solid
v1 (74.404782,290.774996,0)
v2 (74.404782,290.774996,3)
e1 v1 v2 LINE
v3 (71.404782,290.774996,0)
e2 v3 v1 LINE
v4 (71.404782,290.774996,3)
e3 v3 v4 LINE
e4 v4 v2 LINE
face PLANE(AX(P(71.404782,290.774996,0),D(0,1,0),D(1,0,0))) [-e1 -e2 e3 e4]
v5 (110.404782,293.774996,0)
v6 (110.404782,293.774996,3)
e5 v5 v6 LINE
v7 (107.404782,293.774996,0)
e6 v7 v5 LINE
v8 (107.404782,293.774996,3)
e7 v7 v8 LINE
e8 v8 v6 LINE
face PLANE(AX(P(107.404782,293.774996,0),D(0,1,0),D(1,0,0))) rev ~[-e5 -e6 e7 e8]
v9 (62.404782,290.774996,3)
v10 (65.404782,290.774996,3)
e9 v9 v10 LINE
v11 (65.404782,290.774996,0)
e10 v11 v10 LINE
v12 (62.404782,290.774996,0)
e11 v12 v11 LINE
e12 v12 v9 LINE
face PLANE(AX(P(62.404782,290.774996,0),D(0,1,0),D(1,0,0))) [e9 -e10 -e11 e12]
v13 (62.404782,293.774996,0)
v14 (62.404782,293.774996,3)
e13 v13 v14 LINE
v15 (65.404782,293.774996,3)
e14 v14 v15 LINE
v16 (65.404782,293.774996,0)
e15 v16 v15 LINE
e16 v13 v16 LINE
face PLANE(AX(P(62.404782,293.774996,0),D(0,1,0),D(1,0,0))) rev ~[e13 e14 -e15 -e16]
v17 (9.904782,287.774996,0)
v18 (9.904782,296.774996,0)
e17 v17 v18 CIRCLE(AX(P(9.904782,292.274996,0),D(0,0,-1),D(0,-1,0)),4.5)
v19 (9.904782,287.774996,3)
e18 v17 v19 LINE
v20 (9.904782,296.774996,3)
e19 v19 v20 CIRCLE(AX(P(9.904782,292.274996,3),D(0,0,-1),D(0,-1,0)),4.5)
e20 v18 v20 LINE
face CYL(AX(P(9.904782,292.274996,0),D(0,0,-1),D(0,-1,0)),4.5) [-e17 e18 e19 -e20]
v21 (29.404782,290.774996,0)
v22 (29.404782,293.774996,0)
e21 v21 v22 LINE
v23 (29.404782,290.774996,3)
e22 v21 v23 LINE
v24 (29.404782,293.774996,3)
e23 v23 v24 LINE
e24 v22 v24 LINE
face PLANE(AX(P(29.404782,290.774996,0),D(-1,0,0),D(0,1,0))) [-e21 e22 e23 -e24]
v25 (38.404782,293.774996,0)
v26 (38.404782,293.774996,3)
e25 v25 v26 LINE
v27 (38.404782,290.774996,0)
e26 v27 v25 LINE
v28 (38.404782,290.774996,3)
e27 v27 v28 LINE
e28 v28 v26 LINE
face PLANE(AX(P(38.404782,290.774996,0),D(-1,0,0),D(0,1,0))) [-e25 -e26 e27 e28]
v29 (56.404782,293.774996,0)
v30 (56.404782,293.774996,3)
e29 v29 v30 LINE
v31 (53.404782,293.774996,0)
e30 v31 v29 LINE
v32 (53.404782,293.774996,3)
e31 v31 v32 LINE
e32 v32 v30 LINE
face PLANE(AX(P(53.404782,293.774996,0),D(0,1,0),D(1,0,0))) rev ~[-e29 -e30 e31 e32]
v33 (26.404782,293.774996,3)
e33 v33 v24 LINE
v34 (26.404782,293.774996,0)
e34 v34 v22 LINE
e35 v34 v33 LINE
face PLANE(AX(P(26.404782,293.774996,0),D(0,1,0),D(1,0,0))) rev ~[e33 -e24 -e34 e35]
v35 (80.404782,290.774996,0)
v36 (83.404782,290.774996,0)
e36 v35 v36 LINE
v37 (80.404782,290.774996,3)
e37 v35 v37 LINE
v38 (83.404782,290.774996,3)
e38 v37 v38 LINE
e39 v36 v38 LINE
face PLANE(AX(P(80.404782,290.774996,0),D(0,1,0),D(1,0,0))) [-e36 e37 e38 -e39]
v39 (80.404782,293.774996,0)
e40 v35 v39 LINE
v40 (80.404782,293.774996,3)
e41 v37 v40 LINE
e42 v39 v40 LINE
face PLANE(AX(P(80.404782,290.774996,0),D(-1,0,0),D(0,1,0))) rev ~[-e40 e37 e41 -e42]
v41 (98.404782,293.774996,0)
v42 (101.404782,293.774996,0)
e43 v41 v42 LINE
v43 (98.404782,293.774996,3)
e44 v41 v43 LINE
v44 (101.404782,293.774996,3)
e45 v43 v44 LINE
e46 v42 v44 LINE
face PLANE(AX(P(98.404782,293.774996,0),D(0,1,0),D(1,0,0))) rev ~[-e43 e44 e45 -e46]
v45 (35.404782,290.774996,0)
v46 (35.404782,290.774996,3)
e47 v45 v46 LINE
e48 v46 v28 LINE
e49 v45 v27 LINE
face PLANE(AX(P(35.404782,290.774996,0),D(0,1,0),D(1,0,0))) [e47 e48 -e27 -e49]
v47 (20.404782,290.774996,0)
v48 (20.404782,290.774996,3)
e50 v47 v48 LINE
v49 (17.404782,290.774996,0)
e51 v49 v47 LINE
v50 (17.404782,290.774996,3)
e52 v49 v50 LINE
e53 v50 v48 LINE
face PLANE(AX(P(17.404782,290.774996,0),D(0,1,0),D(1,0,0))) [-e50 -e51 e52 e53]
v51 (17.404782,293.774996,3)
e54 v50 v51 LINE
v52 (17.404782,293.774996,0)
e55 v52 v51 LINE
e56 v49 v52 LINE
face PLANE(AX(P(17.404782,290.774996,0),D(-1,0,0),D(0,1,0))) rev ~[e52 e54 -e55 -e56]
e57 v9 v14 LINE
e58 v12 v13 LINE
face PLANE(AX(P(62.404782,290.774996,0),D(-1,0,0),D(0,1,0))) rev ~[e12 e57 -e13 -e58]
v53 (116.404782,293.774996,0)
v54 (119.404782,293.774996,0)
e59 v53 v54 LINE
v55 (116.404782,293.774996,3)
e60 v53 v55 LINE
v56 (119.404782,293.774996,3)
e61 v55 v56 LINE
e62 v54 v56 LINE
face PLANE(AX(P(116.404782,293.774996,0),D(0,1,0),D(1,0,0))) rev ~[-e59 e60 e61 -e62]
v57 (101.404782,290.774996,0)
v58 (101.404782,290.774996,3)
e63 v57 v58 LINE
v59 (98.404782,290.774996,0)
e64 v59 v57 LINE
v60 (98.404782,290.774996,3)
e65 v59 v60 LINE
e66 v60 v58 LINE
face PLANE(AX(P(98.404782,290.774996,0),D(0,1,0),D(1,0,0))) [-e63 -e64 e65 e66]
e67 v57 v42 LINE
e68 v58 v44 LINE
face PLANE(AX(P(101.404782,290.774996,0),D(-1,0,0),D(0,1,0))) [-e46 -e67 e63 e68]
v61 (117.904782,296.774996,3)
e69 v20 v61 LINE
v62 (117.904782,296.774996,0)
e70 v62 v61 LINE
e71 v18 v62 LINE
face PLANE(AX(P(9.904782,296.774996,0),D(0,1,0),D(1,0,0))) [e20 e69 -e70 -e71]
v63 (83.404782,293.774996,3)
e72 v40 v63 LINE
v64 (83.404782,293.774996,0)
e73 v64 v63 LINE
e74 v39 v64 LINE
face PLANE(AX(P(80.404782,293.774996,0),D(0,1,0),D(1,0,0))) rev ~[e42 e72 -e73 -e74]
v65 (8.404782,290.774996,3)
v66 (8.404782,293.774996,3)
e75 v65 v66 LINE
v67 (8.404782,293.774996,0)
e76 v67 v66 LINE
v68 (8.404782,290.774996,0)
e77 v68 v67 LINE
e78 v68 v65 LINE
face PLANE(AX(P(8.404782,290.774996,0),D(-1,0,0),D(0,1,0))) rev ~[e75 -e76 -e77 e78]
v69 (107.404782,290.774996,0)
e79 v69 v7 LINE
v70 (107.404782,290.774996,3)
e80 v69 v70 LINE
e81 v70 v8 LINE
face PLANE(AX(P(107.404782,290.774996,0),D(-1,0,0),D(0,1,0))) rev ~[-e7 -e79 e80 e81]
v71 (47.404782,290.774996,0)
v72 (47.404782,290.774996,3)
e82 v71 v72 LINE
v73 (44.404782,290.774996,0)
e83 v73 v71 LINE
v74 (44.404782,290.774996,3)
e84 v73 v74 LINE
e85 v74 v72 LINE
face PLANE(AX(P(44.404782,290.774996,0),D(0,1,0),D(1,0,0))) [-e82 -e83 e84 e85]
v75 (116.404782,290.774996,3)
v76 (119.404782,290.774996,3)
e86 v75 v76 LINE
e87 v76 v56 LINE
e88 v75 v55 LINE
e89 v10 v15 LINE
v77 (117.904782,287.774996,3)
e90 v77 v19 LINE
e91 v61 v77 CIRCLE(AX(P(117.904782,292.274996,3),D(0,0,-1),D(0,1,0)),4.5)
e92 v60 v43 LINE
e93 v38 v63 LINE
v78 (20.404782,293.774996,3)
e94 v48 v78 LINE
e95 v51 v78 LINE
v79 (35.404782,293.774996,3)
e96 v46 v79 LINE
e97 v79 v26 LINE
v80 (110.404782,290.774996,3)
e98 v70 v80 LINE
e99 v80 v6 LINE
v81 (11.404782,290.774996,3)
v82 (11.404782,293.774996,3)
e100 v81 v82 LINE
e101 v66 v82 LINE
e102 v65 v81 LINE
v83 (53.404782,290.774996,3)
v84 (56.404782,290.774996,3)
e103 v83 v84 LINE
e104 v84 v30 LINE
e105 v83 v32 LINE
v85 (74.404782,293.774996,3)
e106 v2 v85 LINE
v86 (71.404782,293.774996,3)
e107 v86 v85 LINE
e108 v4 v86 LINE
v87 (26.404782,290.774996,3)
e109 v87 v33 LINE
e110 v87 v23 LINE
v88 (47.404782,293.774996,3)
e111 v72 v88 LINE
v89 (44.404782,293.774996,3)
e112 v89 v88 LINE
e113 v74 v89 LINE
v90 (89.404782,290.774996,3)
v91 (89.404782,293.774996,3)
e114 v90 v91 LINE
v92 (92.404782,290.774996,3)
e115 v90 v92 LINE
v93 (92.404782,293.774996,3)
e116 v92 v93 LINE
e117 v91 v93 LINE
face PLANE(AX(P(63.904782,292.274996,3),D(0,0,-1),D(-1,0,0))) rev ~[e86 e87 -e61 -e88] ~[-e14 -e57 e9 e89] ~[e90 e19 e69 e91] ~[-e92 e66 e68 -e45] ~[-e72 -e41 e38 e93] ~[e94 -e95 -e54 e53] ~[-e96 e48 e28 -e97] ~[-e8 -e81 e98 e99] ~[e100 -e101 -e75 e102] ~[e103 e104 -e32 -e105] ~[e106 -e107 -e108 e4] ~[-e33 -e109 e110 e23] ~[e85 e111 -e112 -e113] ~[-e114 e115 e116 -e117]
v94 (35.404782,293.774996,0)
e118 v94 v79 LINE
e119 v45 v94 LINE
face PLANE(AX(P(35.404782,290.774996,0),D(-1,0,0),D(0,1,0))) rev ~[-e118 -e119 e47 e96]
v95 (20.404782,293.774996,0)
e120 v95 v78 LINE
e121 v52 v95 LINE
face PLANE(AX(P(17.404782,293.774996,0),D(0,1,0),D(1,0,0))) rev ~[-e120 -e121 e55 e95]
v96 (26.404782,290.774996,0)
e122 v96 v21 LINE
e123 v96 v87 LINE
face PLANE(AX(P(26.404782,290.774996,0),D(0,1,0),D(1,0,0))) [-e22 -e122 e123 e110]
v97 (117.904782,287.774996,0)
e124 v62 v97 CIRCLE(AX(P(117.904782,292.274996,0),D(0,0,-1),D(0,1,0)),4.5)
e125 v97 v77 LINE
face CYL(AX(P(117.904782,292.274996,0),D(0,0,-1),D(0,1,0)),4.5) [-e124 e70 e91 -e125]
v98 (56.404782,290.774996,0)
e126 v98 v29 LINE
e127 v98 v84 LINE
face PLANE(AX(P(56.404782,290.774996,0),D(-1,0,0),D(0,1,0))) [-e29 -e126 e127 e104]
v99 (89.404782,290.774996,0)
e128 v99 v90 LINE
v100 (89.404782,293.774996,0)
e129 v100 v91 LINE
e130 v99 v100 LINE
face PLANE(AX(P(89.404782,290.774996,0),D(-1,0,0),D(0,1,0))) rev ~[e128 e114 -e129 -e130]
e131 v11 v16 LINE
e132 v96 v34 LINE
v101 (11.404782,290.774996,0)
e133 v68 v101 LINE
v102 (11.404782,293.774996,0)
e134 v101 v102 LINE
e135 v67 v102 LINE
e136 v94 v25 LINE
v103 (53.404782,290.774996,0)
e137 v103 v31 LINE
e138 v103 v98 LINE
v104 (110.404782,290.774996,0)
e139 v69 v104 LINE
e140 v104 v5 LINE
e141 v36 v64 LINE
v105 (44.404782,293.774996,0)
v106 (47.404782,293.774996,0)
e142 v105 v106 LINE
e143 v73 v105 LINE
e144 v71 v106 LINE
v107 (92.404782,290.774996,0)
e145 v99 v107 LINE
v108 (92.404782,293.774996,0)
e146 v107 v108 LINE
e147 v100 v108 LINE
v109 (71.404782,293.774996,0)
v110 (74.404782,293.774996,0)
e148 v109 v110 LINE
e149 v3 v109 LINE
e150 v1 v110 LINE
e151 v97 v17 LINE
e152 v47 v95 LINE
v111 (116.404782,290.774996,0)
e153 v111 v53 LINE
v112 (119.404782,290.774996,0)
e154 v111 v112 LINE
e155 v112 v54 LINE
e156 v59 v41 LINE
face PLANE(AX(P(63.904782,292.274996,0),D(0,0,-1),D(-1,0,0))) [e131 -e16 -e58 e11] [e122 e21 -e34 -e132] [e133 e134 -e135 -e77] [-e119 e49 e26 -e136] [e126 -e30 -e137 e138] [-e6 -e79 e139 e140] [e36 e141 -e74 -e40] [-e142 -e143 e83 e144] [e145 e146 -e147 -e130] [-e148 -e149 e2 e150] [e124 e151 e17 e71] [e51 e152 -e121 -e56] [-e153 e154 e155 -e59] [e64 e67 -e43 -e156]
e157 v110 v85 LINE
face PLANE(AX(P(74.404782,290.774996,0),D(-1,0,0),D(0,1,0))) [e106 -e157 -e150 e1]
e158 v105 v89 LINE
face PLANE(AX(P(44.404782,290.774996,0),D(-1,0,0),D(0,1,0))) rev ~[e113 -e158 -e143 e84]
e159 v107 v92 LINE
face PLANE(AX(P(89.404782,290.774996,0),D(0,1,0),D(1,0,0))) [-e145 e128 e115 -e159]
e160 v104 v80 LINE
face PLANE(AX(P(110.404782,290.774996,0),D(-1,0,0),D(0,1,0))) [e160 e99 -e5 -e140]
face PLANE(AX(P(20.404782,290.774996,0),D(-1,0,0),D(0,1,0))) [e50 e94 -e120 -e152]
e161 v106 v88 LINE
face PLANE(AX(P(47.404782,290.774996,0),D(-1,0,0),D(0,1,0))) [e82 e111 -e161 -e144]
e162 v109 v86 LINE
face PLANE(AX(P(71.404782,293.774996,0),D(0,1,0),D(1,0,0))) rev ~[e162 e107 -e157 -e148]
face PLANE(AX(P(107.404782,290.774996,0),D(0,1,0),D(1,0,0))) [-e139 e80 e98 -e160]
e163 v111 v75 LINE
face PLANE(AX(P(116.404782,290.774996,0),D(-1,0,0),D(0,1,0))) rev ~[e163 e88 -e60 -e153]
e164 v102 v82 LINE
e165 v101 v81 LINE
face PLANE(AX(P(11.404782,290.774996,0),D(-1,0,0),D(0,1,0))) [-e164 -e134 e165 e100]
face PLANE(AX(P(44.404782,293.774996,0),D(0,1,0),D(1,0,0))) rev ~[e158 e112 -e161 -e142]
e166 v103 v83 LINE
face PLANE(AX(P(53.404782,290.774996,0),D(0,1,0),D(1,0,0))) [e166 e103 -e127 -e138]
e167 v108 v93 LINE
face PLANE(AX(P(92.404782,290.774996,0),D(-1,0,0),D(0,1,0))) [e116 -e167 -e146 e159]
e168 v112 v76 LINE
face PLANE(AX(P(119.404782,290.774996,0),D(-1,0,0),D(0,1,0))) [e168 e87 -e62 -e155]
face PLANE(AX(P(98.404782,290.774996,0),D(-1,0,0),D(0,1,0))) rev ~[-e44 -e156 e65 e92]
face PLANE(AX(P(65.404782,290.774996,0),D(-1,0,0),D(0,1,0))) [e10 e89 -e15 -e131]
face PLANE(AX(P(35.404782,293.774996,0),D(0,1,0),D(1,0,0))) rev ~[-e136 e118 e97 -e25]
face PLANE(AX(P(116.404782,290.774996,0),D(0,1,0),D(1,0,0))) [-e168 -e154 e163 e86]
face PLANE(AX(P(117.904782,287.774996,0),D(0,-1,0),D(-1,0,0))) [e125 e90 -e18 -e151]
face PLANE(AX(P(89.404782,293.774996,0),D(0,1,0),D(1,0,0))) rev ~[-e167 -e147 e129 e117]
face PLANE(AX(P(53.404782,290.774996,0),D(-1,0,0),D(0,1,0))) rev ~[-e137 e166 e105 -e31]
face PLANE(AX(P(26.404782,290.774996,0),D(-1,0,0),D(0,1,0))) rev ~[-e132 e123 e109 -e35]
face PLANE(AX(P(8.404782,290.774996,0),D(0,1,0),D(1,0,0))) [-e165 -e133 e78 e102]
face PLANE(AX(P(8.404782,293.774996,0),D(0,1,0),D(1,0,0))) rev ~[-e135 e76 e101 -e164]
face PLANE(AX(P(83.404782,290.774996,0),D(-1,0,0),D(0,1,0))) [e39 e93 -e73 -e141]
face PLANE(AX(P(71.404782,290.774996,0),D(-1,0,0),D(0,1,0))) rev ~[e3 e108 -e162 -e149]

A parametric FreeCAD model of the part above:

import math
import FreeCAD as App
import Part
import Sketcher


def add_polygon(sketch, points):
    """Adds a closed chain of lines whose ends are joined by coincident constraints."""
    first, n = sketch.GeometryCount, len(points)
    for a, b in zip(points, points[1:] + points[:1]):
        sketch.addGeometry(Part.LineSegment(App.Vector(*a, 0), App.Vector(*b, 0)), False)
    for i in range(n):
        sketch.addConstraint(Sketcher.Constraint("Coincident", first + i, 2, first + (i + 1) % n, 1))

doc = App.newDocument("Part")
body = doc.addObject("PartDesign::Body", "Body")

sketch1 = body.newObject("Sketcher::SketchObject", "Sketch")
sketch1.AttachmentSupport = (doc.getObject("XY_Plane"), [""])
sketch1.MapMode = "FlatFace"
sketch1.addGeometry(Part.LineSegment(App.Vector(117.904782, 296.774996, 0), App.Vector(9.904782, 296.774996, 0)), False)
sketch1.addGeometry(Part.ArcOfCircle(Part.Circle(App.Vector(9.904782, 292.274996, 0), App.Vector(0, 0, 1), 4.5), math.radians(90), math.radians(270)), False)
sketch1.addGeometry(Part.LineSegment(App.Vector(9.904782, 287.774996, 0), App.Vector(117.904782, 287.774996, 0)), False)
sketch1.addGeometry(Part.ArcOfCircle(Part.Circle(App.Vector(117.904782, 292.274996, 0), App.Vector(0, 0, 1), 4.5), math.radians(-90), math.radians(90)), False)
add_polygon(sketch1, [(116.404782, 290.774996), (116.404782, 293.774996), (119.404782, 293.774996), (119.404782, 290.774996)])
add_polygon(sketch1, [(107.404782, 290.774996), (107.404782, 293.774996), (110.404782, 293.774996), (110.404782, 290.774996)])
add_polygon(sketch1, [(98.404782, 290.774996), (98.404782, 293.774996), (101.404782, 293.774996), (101.404782, 290.774996)])
add_polygon(sketch1, [(89.404782, 290.774996), (89.404782, 293.774996), (92.404782, 293.774996), (92.404782, 290.774996)])
add_polygon(sketch1, [(80.404782, 290.774996), (80.404782, 293.774996), (83.404782, 293.774996), (83.404782, 290.774996)])
add_polygon(sketch1, [(71.404782, 290.774996), (71.404782, 293.774996), (74.404782, 293.774996), (74.404782, 290.774996)])
add_polygon(sketch1, [(62.404782, 290.774996), (62.404782, 293.774996), (65.404782, 293.774996), (65.404782, 290.774996)])
add_polygon(sketch1, [(53.404782, 290.774996), (53.404782, 293.774996), (56.404782, 293.774996), (56.404782, 290.774996)])
add_polygon(sketch1, [(44.404782, 290.774996), (44.404782, 293.774996), (47.404782, 293.774996), (47.404782, 290.774996)])
add_polygon(sketch1, [(35.404782, 290.774996), (35.404782, 293.774996), (38.404782, 293.774996), (38.404782, 290.774996)])
add_polygon(sketch1, [(26.404782, 290.774996), (26.404782, 293.774996), (29.404782, 293.774996), (29.404782, 290.774996)])
add_polygon(sketch1, [(17.404782, 290.774996), (17.404782, 293.774996), (20.404782, 293.774996), (20.404782, 290.774996)])
add_polygon(sketch1, [(8.404782, 290.774996), (8.404782, 293.774996), (11.404782, 293.774996), (11.404782, 290.774996)])
sketch1.addConstraint([
    Sketcher.Constraint("Tangent", 0, 2, 1, 1),
    Sketcher.Constraint("Tangent", 1, 2, 2, 1),
    Sketcher.Constraint("Tangent", 2, 2, 3, 1),
    Sketcher.Constraint("Tangent", 3, 2, 0, 1),
    Sketcher.Constraint("Horizontal", 0),
    Sketcher.Constraint("Horizontal", 2),
    Sketcher.Constraint("Vertical", 4),
    Sketcher.Constraint("Horizontal", 5),
    Sketcher.Constraint("Vertical", 6),
    Sketcher.Constraint("Horizontal", 7),
    Sketcher.Constraint("Vertical", 8),
    Sketcher.Constraint("Horizontal", 9),
    Sketcher.Constraint("Vertical", 10),
    Sketcher.Constraint("Horizontal", 11),
    Sketcher.Constraint("Vertical", 12),
    Sketcher.Constraint("Horizontal", 13),
    Sketcher.Constraint("Vertical", 14),
    Sketcher.Constraint("Horizontal", 15),
    Sketcher.Constraint("Vertical", 16),
    Sketcher.Constraint("Horizontal", 17),
    Sketcher.Constraint("Vertical", 18),
    Sketcher.Constraint("Horizontal", 19),
    Sketcher.Constraint("Vertical", 20),
    Sketcher.Constraint("Horizontal", 21),
    Sketcher.Constraint("Vertical", 22),
    Sketcher.Constraint("Horizontal", 23),
    Sketcher.Constraint("Vertical", 24),
    Sketcher.Constraint("Horizontal", 25),
    Sketcher.Constraint("Vertical", 26),
    Sketcher.Constraint("Horizontal", 27),
    Sketcher.Constraint("Vertical", 28),
    Sketcher.Constraint("Horizontal", 29),
    Sketcher.Constraint("Vertical", 30),
    Sketcher.Constraint("Horizontal", 31),
    Sketcher.Constraint("Vertical", 32),
    Sketcher.Constraint("Horizontal", 33),
    Sketcher.Constraint("Vertical", 34),
    Sketcher.Constraint("Horizontal", 35),
    Sketcher.Constraint("Vertical", 36),
    Sketcher.Constraint("Horizontal", 37),
    Sketcher.Constraint("Vertical", 38),
    Sketcher.Constraint("Horizontal", 39),
    Sketcher.Constraint("Vertical", 40),
    Sketcher.Constraint("Horizontal", 41),
    Sketcher.Constraint("Vertical", 42),
    Sketcher.Constraint("Horizontal", 43),
    Sketcher.Constraint("Vertical", 44),
    Sketcher.Constraint("Horizontal", 45),
    Sketcher.Constraint("Vertical", 46),
    Sketcher.Constraint("Horizontal", 47),
    Sketcher.Constraint("Vertical", 48),
    Sketcher.Constraint("Horizontal", 49),
    Sketcher.Constraint("Vertical", 50),
    Sketcher.Constraint("Horizontal", 51),
    Sketcher.Constraint("Vertical", 52),
    Sketcher.Constraint("Horizontal", 53),
    Sketcher.Constraint("Vertical", 54),
    Sketcher.Constraint("Horizontal", 55),
    Sketcher.Constraint("Horizontal", 5, 2, 8, 2),
    Sketcher.Constraint("Horizontal", 7, 2, 10, 2),
    Sketcher.Constraint("Horizontal", 9, 2, 12, 2),
    Sketcher.Constraint("Horizontal", 11, 2, 14, 2),
    Sketcher.Constraint("Horizontal", 13, 2, 16, 2),
    Sketcher.Constraint("Horizontal", 15, 2, 18, 2),
    Sketcher.Constraint("Horizontal", 17, 2, 20, 2),
    Sketcher.Constraint("Horizontal", 19, 2, 22, 2),
    Sketcher.Constraint("Horizontal", 21, 2, 24, 2),
    Sketcher.Constraint("Horizontal", 23, 2, 26, 2),
    Sketcher.Constraint("Horizontal", 25, 2, 28, 2),
    Sketcher.Constraint("Horizontal", 27, 2, 30, 2),
    Sketcher.Constraint("Horizontal", 29, 2, 32, 2),
    Sketcher.Constraint("Horizontal", 31, 2, 34, 2),
    Sketcher.Constraint("Horizontal", 33, 2, 36, 2),
    Sketcher.Constraint("Horizontal", 35, 2, 38, 2),
    Sketcher.Constraint("Horizontal", 37, 2, 40, 2),
    Sketcher.Constraint("Horizontal", 39, 2, 42, 2),
    Sketcher.Constraint("Horizontal", 41, 2, 44, 2),
    Sketcher.Constraint("Horizontal", 43, 2, 46, 2),
    Sketcher.Constraint("Horizontal", 45, 2, 48, 2),
    Sketcher.Constraint("Horizontal", 47, 2, 50, 2),
    Sketcher.Constraint("Horizontal", 49, 2, 52, 2),
    Sketcher.Constraint("Horizontal", 51, 2, 54, 2),
    Sketcher.Constraint("Equal", 7, 9),
    Sketcher.Constraint("Equal", 11, 13),
    Sketcher.Constraint("Equal", 15, 17),
    Sketcher.Constraint("Equal", 19, 21),
    Sketcher.Constraint("Equal", 23, 25),
    Sketcher.Constraint("Equal", 27, 29),
    Sketcher.Constraint("Equal", 31, 33),
    Sketcher.Constraint("Equal", 35, 37),
    Sketcher.Constraint("Equal", 39, 41),
    Sketcher.Constraint("Equal", 43, 45),
    Sketcher.Constraint("Equal", 47, 49),
    Sketcher.Constraint("Equal", 51, 53),
    Sketcher.Constraint("Equal", 55, 4),
    Sketcher.Constraint("Radius", 1, 4.5),
    Sketcher.Constraint("DistanceX", 0, 2, 0, 1, 108.0),
    Sketcher.Constraint("DistanceX", 5, 1, 5, 2, 3.0),
    Sketcher.Constraint("DistanceY", 4, 2, 3, 2, 3.0),
    Sketcher.Constraint("DistanceX", 8, 2, 4, 2, 9.0),
    Sketcher.Constraint("DistanceX", 12, 2, 8, 2, 9.0),
    Sketcher.Constraint("DistanceX", 16, 2, 12, 2, 9.0),
    Sketcher.Constraint("DistanceX", 20, 2, 16, 2, 9.0),
    Sketcher.Constraint("DistanceX", 24, 2, 20, 2, 9.0),
    Sketcher.Constraint("DistanceX", 28, 2, 24, 2, 9.0),
    Sketcher.Constraint("DistanceX", 32, 2, 28, 2, 9.0),
    Sketcher.Constraint("DistanceX", 36, 2, 32, 2, 9.0),
    Sketcher.Constraint("DistanceX", 40, 2, 36, 2, 9.0),
    Sketcher.Constraint("DistanceX", 44, 2, 40, 2, 9.0),
    Sketcher.Constraint("DistanceX", 48, 2, 44, 2, 9.0),
    Sketcher.Constraint("DistanceX", 52, 2, 48, 2, 9.0),
    Sketcher.Constraint("DistanceX", 4, 2, 3, 3, 1.5),
    Sketcher.Constraint("DistanceX", -1, 1, 1, 3, 9.904782),
    Sketcher.Constraint("DistanceY", -1, 1, 1, 3, 292.274996),
])
pad1 = body.newObject("PartDesign::Pad", "Pad")
pad1.Profile = sketch1
pad1.Length = 3

doc.recompute()
